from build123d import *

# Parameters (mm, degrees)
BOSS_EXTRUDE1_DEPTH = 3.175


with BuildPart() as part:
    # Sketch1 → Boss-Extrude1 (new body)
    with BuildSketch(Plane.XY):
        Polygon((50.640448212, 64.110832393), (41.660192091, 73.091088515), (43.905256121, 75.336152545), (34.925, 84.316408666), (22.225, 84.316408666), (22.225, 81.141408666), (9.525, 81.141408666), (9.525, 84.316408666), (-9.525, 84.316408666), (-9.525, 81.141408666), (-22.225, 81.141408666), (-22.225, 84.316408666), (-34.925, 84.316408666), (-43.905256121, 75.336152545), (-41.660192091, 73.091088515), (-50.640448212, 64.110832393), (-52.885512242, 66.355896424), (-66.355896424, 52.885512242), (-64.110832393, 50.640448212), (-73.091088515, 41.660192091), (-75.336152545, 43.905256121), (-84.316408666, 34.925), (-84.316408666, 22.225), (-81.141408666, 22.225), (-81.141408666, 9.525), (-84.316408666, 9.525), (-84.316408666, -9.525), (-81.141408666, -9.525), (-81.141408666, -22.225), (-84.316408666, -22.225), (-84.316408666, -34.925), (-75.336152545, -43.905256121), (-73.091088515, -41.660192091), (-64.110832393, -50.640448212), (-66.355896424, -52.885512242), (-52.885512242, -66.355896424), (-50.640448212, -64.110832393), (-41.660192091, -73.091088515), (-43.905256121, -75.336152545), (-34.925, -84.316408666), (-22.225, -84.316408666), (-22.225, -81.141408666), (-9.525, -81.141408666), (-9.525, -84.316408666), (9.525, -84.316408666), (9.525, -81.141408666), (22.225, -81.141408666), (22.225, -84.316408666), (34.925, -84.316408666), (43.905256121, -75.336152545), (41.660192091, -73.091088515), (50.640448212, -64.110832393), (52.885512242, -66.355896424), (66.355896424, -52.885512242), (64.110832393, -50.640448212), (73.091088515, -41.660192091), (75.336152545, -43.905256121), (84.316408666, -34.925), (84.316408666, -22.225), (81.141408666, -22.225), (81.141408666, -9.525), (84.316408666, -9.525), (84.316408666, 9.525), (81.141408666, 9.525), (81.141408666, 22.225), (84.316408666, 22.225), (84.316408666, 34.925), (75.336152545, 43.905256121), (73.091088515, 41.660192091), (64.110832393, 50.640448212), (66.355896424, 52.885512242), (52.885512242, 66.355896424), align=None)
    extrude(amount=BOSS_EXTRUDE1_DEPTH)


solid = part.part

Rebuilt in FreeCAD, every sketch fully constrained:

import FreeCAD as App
import Part
import Sketcher

V = App.Vector
Q = App.Units.Quantity

doc = App.newDocument("Part")
body = doc.addObject("PartDesign::Body", "Body")

# Sketch on XY plane
sketch1 = body.newObject("Sketcher::SketchObject", "Sketch")
sketch1.AttachmentSupport = (doc.getObject("XY_Plane"), [""])
sketch1.MapMode = "FlatFace"
sketch1.addGeometry([
    Part.LineSegment(V(50.6, 64.1, 0), V(41.7, 73.1, 0)),  # 0
    Part.LineSegment(V(41.7, 73.1, 0), V(43.9, 75.3, 0)),  # 1
    Part.LineSegment(V(43.9, 75.3, 0), V(34.9, 84.3, 0)),  # 2
    Part.LineSegment(V(34.9, 84.3, 0), V(22.2, 84.3, 0)),  # 3
    Part.LineSegment(V(22.2, 84.3, 0), V(22.2, 81.1, 0)),  # 4
    Part.LineSegment(V(22.2, 81.1, 0), V(9.5, 81.1, 0)),  # 5
    Part.LineSegment(V(9.5, 81.1, 0), V(9.5, 84.3, 0)),  # 6
    Part.LineSegment(V(9.5, 84.3, 0), V(-9.5, 84.3, 0)),  # 7
    Part.LineSegment(V(-9.5, 84.3, 0), V(-9.5, 81.1, 0)),  # 8
    Part.LineSegment(V(-9.5, 81.1, 0), V(-22.2, 81.1, 0)),  # 9
    Part.LineSegment(V(-22.2, 81.1, 0), V(-22.2, 84.3, 0)),  # 10
    Part.LineSegment(V(-22.2, 84.3, 0), V(-34.9, 84.3, 0)),  # 11
    Part.LineSegment(V(-34.9, 84.3, 0), V(-43.9, 75.3, 0)),  # 12
    Part.LineSegment(V(-43.9, 75.3, 0), V(-41.7, 73.1, 0)),  # 13
    Part.LineSegment(V(-41.7, 73.1, 0), V(-50.6, 64.1, 0)),  # 14
    Part.LineSegment(V(-50.6, 64.1, 0), V(-52.9, 66.4, 0)),  # 15
    Part.LineSegment(V(-52.9, 66.4, 0), V(-66.4, 52.9, 0)),  # 16
    Part.LineSegment(V(-66.4, 52.9, 0), V(-64.1, 50.6, 0)),  # 17
    Part.LineSegment(V(-64.1, 50.6, 0), V(-73.1, 41.7, 0)),  # 18
    Part.LineSegment(V(-73.1, 41.7, 0), V(-75.3, 43.9, 0)),  # 19
    Part.LineSegment(V(-75.3, 43.9, 0), V(-84.3, 34.9, 0)),  # 20
    Part.LineSegment(V(-84.3, 34.9, 0), V(-84.3, 22.2, 0)),  # 21
    Part.LineSegment(V(-84.3, 22.2, 0), V(-81.1, 22.2, 0)),  # 22
    Part.LineSegment(V(-81.1, 22.2, 0), V(-81.1, 9.5, 0)),  # 23
    Part.LineSegment(V(-81.1, 9.5, 0), V(-84.3, 9.5, 0)),  # 24
    Part.LineSegment(V(-84.3, 9.5, 0), V(-84.3, -9.5, 0)),  # 25
    Part.LineSegment(V(-84.3, -9.5, 0), V(-81.1, -9.5, 0)),  # 26
    Part.LineSegment(V(-81.1, -9.5, 0), V(-81.1, -22.2, 0)),  # 27
    Part.LineSegment(V(-81.1, -22.2, 0), V(-84.3, -22.2, 0)),  # 28
    Part.LineSegment(V(-84.3, -22.2, 0), V(-84.3, -34.9, 0)),  # 29
    Part.LineSegment(V(-84.3, -34.9, 0), V(-75.3, -43.9, 0)),  # 30
    Part.LineSegment(V(-75.3, -43.9, 0), V(-73.1, -41.7, 0)),  # 31
    Part.LineSegment(V(-73.1, -41.7, 0), V(-64.1, -50.6, 0)),  # 32
    Part.LineSegment(V(-64.1, -50.6, 0), V(-66.4, -52.9, 0)),  # 33
    Part.LineSegment(V(-66.4, -52.9, 0), V(-52.9, -66.4, 0)),  # 34
    Part.LineSegment(V(-52.9, -66.4, 0), V(-50.6, -64.1, 0)),  # 35
    Part.LineSegment(V(-50.6, -64.1, 0), V(-41.7, -73.1, 0)),  # 36
    Part.LineSegment(V(-41.7, -73.1, 0), V(-43.9, -75.3, 0)),  # 37
    Part.LineSegment(V(-43.9, -75.3, 0), V(-34.9, -84.3, 0)),  # 38
    Part.LineSegment(V(-34.9, -84.3, 0), V(-22.2, -84.3, 0)),  # 39
    Part.LineSegment(V(-22.2, -84.3, 0), V(-22.2, -81.1, 0)),  # 40
    Part.LineSegment(V(-22.2, -81.1, 0), V(-9.5, -81.1, 0)),  # 41
    Part.LineSegment(V(-9.5, -81.1, 0), V(-9.5, -84.3, 0)),  # 42
    Part.LineSegment(V(-9.5, -84.3, 0), V(9.5, -84.3, 0)),  # 43
    Part.LineSegment(V(9.5, -84.3, 0), V(9.5, -81.1, 0)),  # 44
    Part.LineSegment(V(9.5, -81.1, 0), V(22.2, -81.1, 0)),  # 45
    Part.LineSegment(V(22.2, -81.1, 0), V(22.2, -84.3, 0)),  # 46
    Part.LineSegment(V(22.2, -84.3, 0), V(34.9, -84.3, 0)),  # 47
    Part.LineSegment(V(34.9, -84.3, 0), V(43.9, -75.3, 0)),  # 48
    Part.LineSegment(V(43.9, -75.3, 0), V(41.7, -73.1, 0)),  # 49
    Part.LineSegment(V(41.7, -73.1, 0), V(50.6, -64.1, 0)),  # 50
    Part.LineSegment(V(50.6, -64.1, 0), V(52.9, -66.4, 0)),  # 51
    Part.LineSegment(V(52.9, -66.4, 0), V(66.4, -52.9, 0)),  # 52
    Part.LineSegment(V(66.4, -52.9, 0), V(64.1, -50.6, 0)),  # 53
    Part.LineSegment(V(64.1, -50.6, 0), V(73.1, -41.7, 0)),  # 54
    Part.LineSegment(V(73.1, -41.7, 0), V(75.3, -43.9, 0)),  # 55
    Part.LineSegment(V(75.3, -43.9, 0), V(84.3, -34.9, 0)),  # 56
    Part.LineSegment(V(84.3, -34.9, 0), V(84.3, -22.2, 0)),  # 57
    Part.LineSegment(V(84.3, -22.2, 0), V(81.1, -22.2, 0)),  # 58
    Part.LineSegment(V(81.1, -22.2, 0), V(81.1, -9.5, 0)),  # 59
    Part.LineSegment(V(81.1, -9.5, 0), V(84.3, -9.5, 0)),  # 60
    Part.LineSegment(V(84.3, -9.5, 0), V(84.3, 9.5, 0)),  # 61
    Part.LineSegment(V(84.3, 9.5, 0), V(81.1, 9.5, 0)),  # 62
    Part.LineSegment(V(81.1, 9.5, 0), V(81.1, 22.2, 0)),  # 63
    Part.LineSegment(V(81.1, 22.2, 0), V(84.3, 22.2, 0)),  # 64
    Part.LineSegment(V(84.3, 22.2, 0), V(84.3, 34.9, 0)),  # 65
    Part.LineSegment(V(84.3, 34.9, 0), V(75.3, 43.9, 0)),  # 66
    Part.LineSegment(V(75.3, 43.9, 0), V(73.1, 41.7, 0)),  # 67
    Part.LineSegment(V(73.1, 41.7, 0), V(64.1, 50.6, 0)),  # 68
    Part.LineSegment(V(64.1, 50.6, 0), V(66.4, 52.9, 0)),  # 69
    Part.LineSegment(V(66.4, 52.9, 0), V(52.9, 66.4, 0)),  # 70
    Part.LineSegment(V(52.9, 66.4, 0), V(50.6, 64.1, 0)),  # 71
], False)
sketch1.addConstraint([
    Sketcher.Constraint("Coincident", 0, 2, 1, 1),
    Sketcher.Constraint("Coincident", 1, 2, 2, 1),
    Sketcher.Constraint("Coincident", 2, 2, 3, 1),
    Sketcher.Constraint("Coincident", 3, 2, 4, 1),
    Sketcher.Constraint("Coincident", 4, 2, 5, 1),
    Sketcher.Constraint("Coincident", 5, 2, 6, 1),
    Sketcher.Constraint("Coincident", 6, 2, 7, 1),
    Sketcher.Constraint("Coincident", 7, 2, 8, 1),
    Sketcher.Constraint("Coincident", 8, 2, 9, 1),
    Sketcher.Constraint("Coincident", 9, 2, 10, 1),
    Sketcher.Constraint("Coincident", 10, 2, 11, 1),
    Sketcher.Constraint("Coincident", 11, 2, 12, 1),
    Sketcher.Constraint("Coincident", 12, 2, 13, 1),
    Sketcher.Constraint("Coincident", 13, 2, 14, 1),
    Sketcher.Constraint("Coincident", 14, 2, 15, 1),
    Sketcher.Constraint("Coincident", 15, 2, 16, 1),
    Sketcher.Constraint("Coincident", 16, 2, 17, 1),
    Sketcher.Constraint("Coincident", 17, 2, 18, 1),
    Sketcher.Constraint("Coincident", 18, 2, 19, 1),
    Sketcher.Constraint("Coincident", 19, 2, 20, 1),
    Sketcher.Constraint("Coincident", 20, 2, 21, 1),
    Sketcher.Constraint("Coincident", 21, 2, 22, 1),
    Sketcher.Constraint("Coincident", 22, 2, 23, 1),
    Sketcher.Constraint("Coincident", 23, 2, 24, 1),
    Sketcher.Constraint("Coincident", 24, 2, 25, 1),
    Sketcher.Constraint("Coincident", 25, 2, 26, 1),
    Sketcher.Constraint("Coincident", 26, 2, 27, 1),
    Sketcher.Constraint("Coincident", 27, 2, 28, 1),
    Sketcher.Constraint("Coincident", 28, 2, 29, 1),
    Sketcher.Constraint("Coincident", 29, 2, 30, 1),
    Sketcher.Constraint("Coincident", 30, 2, 31, 1),
    Sketcher.Constraint("Coincident", 31, 2, 32, 1),
    Sketcher.Constraint("Coincident", 32, 2, 33, 1),
    Sketcher.Constraint("Coincident", 33, 2, 34, 1),
    Sketcher.Constraint("Coincident", 34, 2, 35, 1),
    Sketcher.Constraint("Coincident", 35, 2, 36, 1),
    Sketcher.Constraint("Coincident", 36, 2, 37, 1),
    Sketcher.Constraint("Coincident", 37, 2, 38, 1),
    Sketcher.Constraint("Coincident", 38, 2, 39, 1),
    Sketcher.Constraint("Coincident", 39, 2, 40, 1),
    Sketcher.Constraint("Coincident", 40, 2, 41, 1),
    Sketcher.Constraint("Coincident", 41, 2, 42, 1),
    Sketcher.Constraint("Coincident", 42, 2, 43, 1),
    Sketcher.Constraint("Coincident", 43, 2, 44, 1),
    Sketcher.Constraint("Coincident", 44, 2, 45, 1),
    Sketcher.Constraint("Coincident", 45, 2, 46, 1),
    Sketcher.Constraint("Coincident", 46, 2, 47, 1),
    Sketcher.Constraint("Coincident", 47, 2, 48, 1),
    Sketcher.Constraint("Coincident", 48, 2, 49, 1),
    Sketcher.Constraint("Coincident", 49, 2, 50, 1),
    Sketcher.Constraint("Coincident", 50, 2, 51, 1),
    Sketcher.Constraint("Coincident", 51, 2, 52, 1),
    Sketcher.Constraint("Coincident", 52, 2, 53, 1),
    Sketcher.Constraint("Coincident", 53, 2, 54, 1),
    Sketcher.Constraint("Coincident", 54, 2, 55, 1),
    Sketcher.Constraint("Coincident", 55, 2, 56, 1),
    Sketcher.Constraint("Coincident", 56, 2, 57, 1),
    Sketcher.Constraint("Coincident", 57, 2, 58, 1),
    Sketcher.Constraint("Coincident", 58, 2, 59, 1),
    Sketcher.Constraint("Coincident", 59, 2, 60, 1),
    Sketcher.Constraint("Coincident", 60, 2, 61, 1),
    Sketcher.Constraint("Coincident", 61, 2, 62, 1),
    Sketcher.Constraint("Coincident", 62, 2, 63, 1),
    Sketcher.Constraint("Coincident", 63, 2, 64, 1),
    Sketcher.Constraint("Coincident", 64, 2, 65, 1),
    Sketcher.Constraint("Coincident", 65, 2, 66, 1),
    Sketcher.Constraint("Coincident", 66, 2, 67, 1),
    Sketcher.Constraint("Coincident", 67, 2, 68, 1),
    Sketcher.Constraint("Coincident", 68, 2, 69, 1),
    Sketcher.Constraint("Coincident", 69, 2, 70, 1),
    Sketcher.Constraint("Coincident", 70, 2, 71, 1),
    Sketcher.Constraint("Coincident", 71, 2, 0, 1),
    Sketcher.Constraint("Horizontal", 3),
    Sketcher.Constraint("Vertical", 4),
    Sketcher.Constraint("Horizontal", 5),
    Sketcher.Constraint("Vertical", 6),
    Sketcher.Constraint("Horizontal", 7),
    Sketcher.Constraint("Vertical", 8),
    Sketcher.Constraint("Horizontal", 9),
    Sketcher.Constraint("Vertical", 10),
    Sketcher.Constraint("Horizontal", 11),
    Sketcher.Constraint("Vertical", 21),
    Sketcher.Constraint("Horizontal", 22),
    Sketcher.Constraint("Vertical", 23),
    Sketcher.Constraint("Horizontal", 24),
    Sketcher.Constraint("Vertical", 25),
    Sketcher.Constraint("Horizontal", 26),
    Sketcher.Constraint("Vertical", 27),
    Sketcher.Constraint("Horizontal", 28),
    Sketcher.Constraint("Vertical", 29),
    Sketcher.Constraint("Horizontal", 39),
    Sketcher.Constraint("Vertical", 40),
    Sketcher.Constraint("Horizontal", 41),
    Sketcher.Constraint("Vertical", 42),
    Sketcher.Constraint("Horizontal", 43),
    Sketcher.Constraint("Vertical", 44),
    Sketcher.Constraint("Horizontal", 45),
    Sketcher.Constraint("Vertical", 46),
    Sketcher.Constraint("Horizontal", 47),
    Sketcher.Constraint("Vertical", 57),
    Sketcher.Constraint("Horizontal", 58),
    Sketcher.Constraint("Vertical", 59),
    Sketcher.Constraint("Horizontal", 60),
    Sketcher.Constraint("Vertical", 61),
    Sketcher.Constraint("Horizontal", 62),
    Sketcher.Constraint("Vertical", 63),
    Sketcher.Constraint("Horizontal", 64),
    Sketcher.Constraint("Vertical", 65),
    Sketcher.Constraint("Symmetric", 0, 2, 36, 2, -1, 1),
    Sketcher.Constraint("Symmetric", 1, 2, 37, 2, -1, 1),
    Sketcher.Constraint("Symmetric", 2, 2, 38, 2, -1, 1),
    Sketcher.Constraint("Symmetric", 4, 2, 40, 2, -1, 1),
    Sketcher.Constraint("Symmetric", 6, 2, 42, 2, -1, 1),
    Sketcher.Constraint("Symmetric", 8, 2, 44, 2, -1, 1),
    Sketcher.Constraint("Symmetric", 10, 2, 46, 2, -1, 1),
    Sketcher.Constraint("Symmetric", 12, 2, 48, 2, -1, 1),
    Sketcher.Constraint("Symmetric", 13, 2, 49, 2, -1, 1),
    Sketcher.Constraint("Symmetric", 14, 2, 50, 2, -1, 1),
    Sketcher.Constraint("Symmetric", 15, 2, 51, 2, -1, 1),
    Sketcher.Constraint("Symmetric", 16, 2, 52, 2, -1, 1),
    Sketcher.Constraint("Symmetric", 17, 2, 53, 2, -1, 1),
    Sketcher.Constraint("Symmetric", 18, 2, 54, 2, -1, 1),
    Sketcher.Constraint("Symmetric", 19, 2, 55, 2, -1, 1),
    Sketcher.Constraint("Symmetric", 20, 2, 56, 2, -1, 1),
    Sketcher.Constraint("Symmetric", 22, 2, 58, 2, -1, 1),
    Sketcher.Constraint("Symmetric", 24, 2, 60, 2, -1, 1),
    Sketcher.Constraint("Symmetric", 26, 2, 62, 2, -1, 1),
    Sketcher.Constraint("Symmetric", 28, 2, 64, 2, -1, 1),
    Sketcher.Constraint("Symmetric", 30, 2, 66, 2, -1, 1),
    Sketcher.Constraint("Symmetric", 31, 2, 67, 2, -1, 1),
    Sketcher.Constraint("Symmetric", 32, 2, 68, 2, -1, 1),
    Sketcher.Constraint("Symmetric", 33, 2, 69, 2, -1, 1),
    Sketcher.Constraint("Symmetric", 34, 2, 70, 2, -1, 1),
    Sketcher.Constraint("Symmetric", 35, 2, 71, 2, -1, 1),
    Sketcher.Constraint("Symmetric", 5, 2, 8, 2, -2),
    Sketcher.Constraint("Symmetric", 3, 2, 10, 2, -2),
    Sketcher.Constraint("Symmetric", 1, 2, 12, 2, -2),
    Sketcher.Constraint("Symmetric", 0, 2, 13, 2, -2),
    Sketcher.Constraint("Symmetric", 35, 2, 50, 2, -2),
    Sketcher.Constraint("Symmetric", 34, 2, 51, 2, -2),
    Sketcher.Constraint("Symmetric", 33, 2, 52, 2, -2),
    Sketcher.Constraint("Symmetric", 32, 2, 53, 2, -2),
    Sketcher.Constraint("Symmetric", 31, 2, 54, 2, -2),
    Sketcher.Constraint("Symmetric", 30, 2, 55, 2, -2),
    Sketcher.Constraint("Symmetric", 29, 2, 56, 2, -2),
    Sketcher.Constraint("Symmetric", 27, 2, 58, 2, -2),
    Sketcher.Constraint("Perpendicular", 0, 1),
    Sketcher.Constraint("Perpendicular", 1, 2),
    Sketcher.Constraint("Perpendicular", 2, 12),
    Sketcher.Constraint("Perpendicular", 12, 13),
    Sketcher.Constraint("Perpendicular", 14, 15),
    Sketcher.Constraint("Perpendicular", 15, 16),
    Sketcher.Constraint("Perpendicular", 16, 17),
    Sketcher.Constraint("Perpendicular", 17, 18),
    Sketcher.Constraint("Perpendicular", 18, 19),
    Sketcher.Constraint("Perpendicular", 19, 20),
    Sketcher.Constraint("Perpendicular", 38, 48),
    Sketcher.Constraint("Perpendicular", 56, 66),
    Sketcher.Constraint("Horizontal", 3, 2, 6, 2),
    Sketcher.Constraint("Horizontal", 26, 2, 59, 2),
    Sketcher.Constraint("Vertical", 21, 2, 24, 2),
    Sketcher.Constraint("Equal", 3, 5),
    Sketcher.Constraint("Equal", 64, 4),
    Sketcher.Constraint("Equal", 47, 21),
    Sketcher.Constraint("Equal", 21, 23),
    Sketcher.Constraint("Equal", 43, 25),
    Sketcher.Constraint("Equal", 0, 2),
    Sketcher.Constraint("Equal", 13, 15),
    Sketcher.Constraint("Equal", 15, 17),
    Sketcher.Constraint("Equal", 14, 18),
    Sketcher.Constraint("Equal", 17, 19),
    Sketcher.Constraint("Equal", 18, 20),
    Sketcher.Constraint("DistanceX", 3, 2, 3, 1, Q("0.5 in")),
    Sketcher.Constraint("Distance", 0, Q("0.5 in")),
    Sketcher.Constraint("DistanceX", 7, 2, 7, 1, Q("0.75 in")),
    Sketcher.Constraint("Distance", 16, Q("0.75 in")),
    Sketcher.Constraint("DistanceX", 22, 1, 22, 2, Q("0.125 in")),
    Sketcher.Constraint("Distance", 1, Q("0.125 in")),
])
pad1 = body.newObject("PartDesign::Pad", "Pad")
pad1.Profile = sketch1
pad1.Length = Q("0.125 in")

doc.recompute()
